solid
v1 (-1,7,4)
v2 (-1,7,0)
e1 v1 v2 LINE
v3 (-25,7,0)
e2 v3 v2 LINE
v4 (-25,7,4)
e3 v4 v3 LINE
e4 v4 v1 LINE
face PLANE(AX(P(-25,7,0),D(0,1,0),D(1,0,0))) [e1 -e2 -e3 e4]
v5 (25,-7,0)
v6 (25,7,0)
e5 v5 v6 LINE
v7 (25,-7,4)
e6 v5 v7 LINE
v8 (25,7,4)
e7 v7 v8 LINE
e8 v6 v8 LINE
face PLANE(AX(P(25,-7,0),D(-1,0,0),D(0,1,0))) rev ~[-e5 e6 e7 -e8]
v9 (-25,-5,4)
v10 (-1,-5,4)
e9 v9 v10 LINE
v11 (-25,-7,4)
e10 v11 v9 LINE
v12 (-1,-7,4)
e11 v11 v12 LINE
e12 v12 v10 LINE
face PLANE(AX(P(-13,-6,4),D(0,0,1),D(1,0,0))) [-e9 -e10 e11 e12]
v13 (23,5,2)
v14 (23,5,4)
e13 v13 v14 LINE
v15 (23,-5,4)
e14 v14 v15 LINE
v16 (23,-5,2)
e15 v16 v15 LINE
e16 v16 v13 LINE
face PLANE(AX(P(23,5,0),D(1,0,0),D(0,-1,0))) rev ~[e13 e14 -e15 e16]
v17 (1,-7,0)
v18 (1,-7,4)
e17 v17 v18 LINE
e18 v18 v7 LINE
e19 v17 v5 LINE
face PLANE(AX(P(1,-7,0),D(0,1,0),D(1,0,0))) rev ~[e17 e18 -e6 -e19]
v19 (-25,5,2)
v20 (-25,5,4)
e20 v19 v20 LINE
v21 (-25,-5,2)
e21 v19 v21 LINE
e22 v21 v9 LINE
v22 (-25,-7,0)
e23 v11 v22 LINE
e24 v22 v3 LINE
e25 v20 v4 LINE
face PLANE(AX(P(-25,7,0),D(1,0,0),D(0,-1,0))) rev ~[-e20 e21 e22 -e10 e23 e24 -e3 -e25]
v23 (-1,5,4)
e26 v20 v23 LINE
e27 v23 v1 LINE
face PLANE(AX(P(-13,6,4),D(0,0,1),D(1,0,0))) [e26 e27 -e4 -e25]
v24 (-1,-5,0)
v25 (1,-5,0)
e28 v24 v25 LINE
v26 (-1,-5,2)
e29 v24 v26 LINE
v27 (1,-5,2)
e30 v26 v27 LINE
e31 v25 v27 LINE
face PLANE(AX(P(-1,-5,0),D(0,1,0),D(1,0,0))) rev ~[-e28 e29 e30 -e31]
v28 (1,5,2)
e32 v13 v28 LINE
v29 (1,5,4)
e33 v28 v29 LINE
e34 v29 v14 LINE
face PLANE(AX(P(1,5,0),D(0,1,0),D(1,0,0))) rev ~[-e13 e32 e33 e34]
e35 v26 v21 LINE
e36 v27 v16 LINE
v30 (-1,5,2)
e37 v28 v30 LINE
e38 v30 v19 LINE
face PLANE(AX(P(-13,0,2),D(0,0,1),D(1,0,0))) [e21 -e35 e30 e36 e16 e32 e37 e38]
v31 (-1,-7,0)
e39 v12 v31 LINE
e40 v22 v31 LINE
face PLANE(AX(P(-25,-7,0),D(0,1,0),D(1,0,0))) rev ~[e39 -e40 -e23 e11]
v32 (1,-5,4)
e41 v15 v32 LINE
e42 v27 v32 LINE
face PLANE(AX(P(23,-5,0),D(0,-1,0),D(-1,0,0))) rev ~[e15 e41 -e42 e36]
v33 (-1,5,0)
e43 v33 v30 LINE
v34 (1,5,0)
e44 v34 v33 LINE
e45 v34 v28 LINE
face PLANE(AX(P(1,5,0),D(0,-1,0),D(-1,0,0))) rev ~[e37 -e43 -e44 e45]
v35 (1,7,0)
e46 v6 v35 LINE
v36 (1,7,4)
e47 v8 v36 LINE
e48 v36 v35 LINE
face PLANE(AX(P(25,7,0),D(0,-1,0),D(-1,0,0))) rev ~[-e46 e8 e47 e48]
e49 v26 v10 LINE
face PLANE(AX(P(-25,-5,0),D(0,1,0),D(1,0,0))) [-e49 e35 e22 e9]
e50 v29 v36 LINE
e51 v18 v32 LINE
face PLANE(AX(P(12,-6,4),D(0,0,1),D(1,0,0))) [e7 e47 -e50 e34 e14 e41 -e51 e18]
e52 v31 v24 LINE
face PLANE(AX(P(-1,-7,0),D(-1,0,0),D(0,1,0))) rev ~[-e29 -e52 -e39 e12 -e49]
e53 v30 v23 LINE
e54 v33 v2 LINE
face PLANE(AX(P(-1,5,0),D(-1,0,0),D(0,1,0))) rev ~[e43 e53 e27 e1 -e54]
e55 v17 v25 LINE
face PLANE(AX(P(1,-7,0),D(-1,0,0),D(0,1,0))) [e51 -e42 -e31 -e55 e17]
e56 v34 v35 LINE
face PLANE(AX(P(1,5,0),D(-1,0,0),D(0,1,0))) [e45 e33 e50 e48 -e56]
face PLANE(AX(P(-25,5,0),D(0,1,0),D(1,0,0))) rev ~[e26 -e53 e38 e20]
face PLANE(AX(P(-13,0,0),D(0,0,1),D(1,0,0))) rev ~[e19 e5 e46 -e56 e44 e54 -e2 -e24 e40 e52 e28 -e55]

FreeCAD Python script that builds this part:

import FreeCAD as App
import Part
import Sketcher

V = App.Vector
Q = App.Units.Quantity

doc = App.newDocument("Part")
body = doc.addObject("PartDesign::Body", "Body")

# Sketch on XY plane
sketch1 = body.newObject("Sketcher::SketchObject", "Sketch")
sketch1.AttachmentSupport = (doc.getObject("XY_Plane"), [""])
sketch1.MapMode = "FlatFace"
sketch1.addGeometry([
    Part.LineSegment(V(-25, -7, 0), V(-1, -7, 0)),  # 0
    Part.LineSegment(V(-1, -7, 0), V(-1, -5, 0)),  # 1
    Part.LineSegment(V(-1, -5, 0), V(1, -5, 0)),  # 2
    Part.LineSegment(V(1, -5, 0), V(1, -7, 0)),  # 3
    Part.LineSegment(V(1, -7, 0), V(25, -7, 0)),  # 4
    Part.LineSegment(V(25, -7, 0), V(25, 7, 0)),  # 5
    Part.LineSegment(V(25, 7, 0), V(1, 7, 0)),  # 6
    Part.LineSegment(V(1, 7, 0), V(1, 5, 0)),  # 7
    Part.LineSegment(V(1, 5, 0), V(-1, 5, 0)),  # 8
    Part.LineSegment(V(-1, 5, 0), V(-1, 7, 0)),  # 9
    Part.LineSegment(V(-1, 7, 0), V(-25, 7, 0)),  # 10
    Part.LineSegment(V(-25, 7, 0), V(-25, -7, 0)),  # 11
], False)
sketch1.addConstraint([
    Sketcher.Constraint("Coincident", 0, 2, 1, 1),
    Sketcher.Constraint("Coincident", 1, 2, 2, 1),
    Sketcher.Constraint("Coincident", 2, 2, 3, 1),
    Sketcher.Constraint("Coincident", 3, 2, 4, 1),
    Sketcher.Constraint("Coincident", 4, 2, 5, 1),
    Sketcher.Constraint("Coincident", 5, 2, 6, 1),
    Sketcher.Constraint("Coincident", 6, 2, 7, 1),
    Sketcher.Constraint("Coincident", 7, 2, 8, 1),
    Sketcher.Constraint("Coincident", 8, 2, 9, 1),
    Sketcher.Constraint("Coincident", 9, 2, 10, 1),
    Sketcher.Constraint("Coincident", 10, 2, 11, 1),
    Sketcher.Constraint("Coincident", 11, 2, 0, 1),
    Sketcher.Constraint("Horizontal", 0),
    Sketcher.Constraint("Vertical", 1),
    Sketcher.Constraint("Horizontal", 2),
    Sketcher.Constraint("Vertical", 3),
    Sketcher.Constraint("Horizontal", 4),
    Sketcher.Constraint("Vertical", 5),
    Sketcher.Constraint("Horizontal", 6),
    Sketcher.Constraint("Vertical", 7),
    Sketcher.Constraint("Horizontal", 8),
    Sketcher.Constraint("Vertical", 9),
    Sketcher.Constraint("Horizontal", 10),
    Sketcher.Constraint("Vertical", 11),
    Sketcher.Constraint("Symmetric", 0, 2, 6, 2, -1, 1),
    Sketcher.Constraint("Symmetric", 2, 2, 8, 2, -1, 1),
    Sketcher.Constraint("Symmetric", 4, 2, 10, 2, -1, 1),
    Sketcher.Constraint("Symmetric", 0, 2, 3, 2, -2),
    Sketcher.Constraint("Equal", 8, 1),
    Sketcher.Constraint("DistanceX", 0, 1, 0, 2, Q("24 mm")),
    Sketcher.Constraint("DistanceX", 2, 1, 2, 2, Q("2 mm")),
    Sketcher.Constraint("DistanceY", 5, 1, 5, 2, Q("14 mm")),
])
pad1 = body.newObject("PartDesign::Pad", "Pad")
pad1.Profile = sketch1
pad1.Length = 2

# Sketch on XY plane
sketch2 = body.newObject("Sketcher::SketchObject", "Sketch001")
sketch2.AttachmentSupport = (doc.getObject("XY_Plane"), [""])
sketch2.MapMode = "FlatFace"
sketch2.addGeometry([
    Part.LineSegment(V(1, -5, 0), V(1, -7, 0)),  # 0
    Part.LineSegment(V(1, -7, 0), V(25, -7, 0)),  # 1
    Part.LineSegment(V(25, -7, 0), V(25, 7, 0)),  # 2
    Part.LineSegment(V(25, 7, 0), V(1, 7, 0)),  # 3
    Part.LineSegment(V(1, 7, 0), V(1, 5, 0)),  # 4
    Part.LineSegment(V(1, 5, 0), V(23, 5, 0)),  # 5
    Part.LineSegment(V(23, 5, 0), V(23, -5, 0)),  # 6
    Part.LineSegment(V(23, -5, 0), V(1, -5, 0)),  # 7
    Part.LineSegment(V(-25, 7, 0), V(-25, 5, 0)),  # 8
    Part.LineSegment(V(-25, 5, 0), V(-1, 5, 0)),  # 9
    Part.LineSegment(V(-1, 5, 0), V(-1, 7, 0)),  # 10
    Part.LineSegment(V(-1, 7, 0), V(-25, 7, 0)),  # 11
    Part.LineSegment(V(-25, -5, 0), V(-25, -7, 0)),  # 12
    Part.LineSegment(V(-25, -7, 0), V(-1, -7, 0)),  # 13
    Part.LineSegment(V(-1, -7, 0), V(-1, -5, 0)),  # 14
    Part.LineSegment(V(-1, -5, 0), V(-25, -5, 0)),  # 15
], False)
sketch2.addConstraint([
    Sketcher.Constraint("Coincident", 0, 2, 1, 1),
    Sketcher.Constraint("Coincident", 1, 2, 2, 1),
    Sketcher.Constraint("Coincident", 2, 2, 3, 1),
    Sketcher.Constraint("Coincident", 3, 2, 4, 1),
    Sketcher.Constraint("Coincident", 4, 2, 5, 1),
    Sketcher.Constraint("Coincident", 5, 2, 6, 1),
    Sketcher.Constraint("Coincident", 6, 2, 7, 1),
    Sketcher.Constraint("Coincident", 7, 2, 0, 1),
    Sketcher.Constraint("Coincident", 8, 2, 9, 1),
    Sketcher.Constraint("Coincident", 9, 2, 10, 1),
    Sketcher.Constraint("Coincident", 10, 2, 11, 1),
    Sketcher.Constraint("Coincident", 11, 2, 8, 1),
    Sketcher.Constraint("Coincident", 12, 2, 13, 1),
    Sketcher.Constraint("Coincident", 13, 2, 14, 1),
    Sketcher.Constraint("Coincident", 14, 2, 15, 1),
    Sketcher.Constraint("Coincident", 15, 2, 12, 1),
    Sketcher.Constraint("Vertical", 0),
    Sketcher.Constraint("Horizontal", 1),
    Sketcher.Constraint("Vertical", 2),
    Sketcher.Constraint("Horizontal", 3),
    Sketcher.Constraint("Vertical", 4),
    Sketcher.Constraint("Horizontal", 5),
    Sketcher.Constraint("Vertical", 6),
    Sketcher.Constraint("Horizontal", 7),
    Sketcher.Constraint("Vertical", 8),
    Sketcher.Constraint("Horizontal", 9),
    Sketcher.Constraint("Vertical", 10),
    Sketcher.Constraint("Horizontal", 11),
    Sketcher.Constraint("Vertical", 12),
    Sketcher.Constraint("Horizontal", 13),
    Sketcher.Constraint("Vertical", 14),
    Sketcher.Constraint("Horizontal", 15),
    Sketcher.Constraint("Symmetric", 7, 2, 9, 2, -1, 1),
    Sketcher.Constraint("Symmetric", 1, 2, 11, 2, -1, 1),
    Sketcher.Constraint("Symmetric", 2, 2, 12, 2, -1, 1),
    Sketcher.Constraint("Symmetric", 4, 2, 14, 2, -1, 1),
    Sketcher.Constraint("Symmetric", 4, 2, 9, 2, -2),
    Sketcher.Constraint("Horizontal", 3, 2, 10, 2),
    Sketcher.Constraint("DistanceX", 1, 1, 1, 2, Q("24 mm")),
    Sketcher.Constraint("DistanceX", 5, 1, 5, 2, Q("22 mm")),
    Sketcher.Constraint("DistanceY", 0, 2, 0, 1, Q("2 mm")),
    Sketcher.Constraint("DistanceY", 2, 1, 2, 2, Q("14 mm")),
    Sketcher.Constraint("DistanceX", -1, 1, 0, 2, Q("1 mm")),
])
pad2 = body.newObject("PartDesign::Pad", "Pad001")
pad2.Profile = sketch2
pad2.Length = 4

doc.recompute()
